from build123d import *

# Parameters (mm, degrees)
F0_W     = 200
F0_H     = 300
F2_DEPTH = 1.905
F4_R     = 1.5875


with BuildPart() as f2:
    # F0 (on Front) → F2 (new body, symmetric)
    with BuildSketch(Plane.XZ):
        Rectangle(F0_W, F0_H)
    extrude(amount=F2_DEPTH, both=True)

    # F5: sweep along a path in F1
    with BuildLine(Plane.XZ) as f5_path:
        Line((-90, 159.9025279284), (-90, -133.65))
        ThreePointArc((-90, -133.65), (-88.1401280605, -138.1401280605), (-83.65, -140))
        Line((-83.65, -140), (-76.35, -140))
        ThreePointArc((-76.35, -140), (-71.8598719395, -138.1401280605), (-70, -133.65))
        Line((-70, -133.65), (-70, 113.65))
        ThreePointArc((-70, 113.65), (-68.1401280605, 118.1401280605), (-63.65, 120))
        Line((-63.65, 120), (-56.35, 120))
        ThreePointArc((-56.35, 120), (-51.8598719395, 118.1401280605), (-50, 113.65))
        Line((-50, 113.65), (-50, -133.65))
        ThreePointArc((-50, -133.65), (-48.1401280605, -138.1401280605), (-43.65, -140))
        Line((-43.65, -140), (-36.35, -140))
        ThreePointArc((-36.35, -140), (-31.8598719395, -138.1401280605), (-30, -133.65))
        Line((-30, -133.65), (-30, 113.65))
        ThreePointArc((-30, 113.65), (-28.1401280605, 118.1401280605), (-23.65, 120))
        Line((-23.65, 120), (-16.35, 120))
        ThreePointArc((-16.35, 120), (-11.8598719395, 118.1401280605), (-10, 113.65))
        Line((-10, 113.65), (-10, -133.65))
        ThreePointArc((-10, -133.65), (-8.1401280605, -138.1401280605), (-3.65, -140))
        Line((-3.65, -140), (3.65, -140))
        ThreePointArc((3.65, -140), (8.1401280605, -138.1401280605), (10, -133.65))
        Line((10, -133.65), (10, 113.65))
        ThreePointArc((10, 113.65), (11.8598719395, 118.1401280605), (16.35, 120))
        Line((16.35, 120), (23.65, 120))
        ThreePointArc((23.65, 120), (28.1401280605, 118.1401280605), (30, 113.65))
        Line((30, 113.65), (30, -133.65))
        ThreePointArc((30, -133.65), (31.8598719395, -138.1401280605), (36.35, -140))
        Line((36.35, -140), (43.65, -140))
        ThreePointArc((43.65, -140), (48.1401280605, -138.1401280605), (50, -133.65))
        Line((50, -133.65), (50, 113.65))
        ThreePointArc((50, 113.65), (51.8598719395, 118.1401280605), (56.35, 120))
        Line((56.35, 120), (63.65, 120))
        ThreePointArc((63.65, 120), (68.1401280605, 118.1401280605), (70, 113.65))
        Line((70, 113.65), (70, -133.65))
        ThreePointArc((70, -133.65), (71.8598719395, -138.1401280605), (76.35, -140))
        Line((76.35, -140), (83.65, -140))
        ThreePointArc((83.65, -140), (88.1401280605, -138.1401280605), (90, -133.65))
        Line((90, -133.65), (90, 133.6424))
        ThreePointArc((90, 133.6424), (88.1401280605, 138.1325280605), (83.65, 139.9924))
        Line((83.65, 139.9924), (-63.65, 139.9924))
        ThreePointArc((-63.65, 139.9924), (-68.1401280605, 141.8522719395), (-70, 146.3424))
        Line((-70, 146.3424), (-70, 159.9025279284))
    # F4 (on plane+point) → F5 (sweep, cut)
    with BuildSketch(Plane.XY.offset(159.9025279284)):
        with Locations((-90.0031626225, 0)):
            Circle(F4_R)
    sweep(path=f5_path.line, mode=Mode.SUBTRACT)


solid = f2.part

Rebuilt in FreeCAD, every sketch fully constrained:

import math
import FreeCAD as App
import Part
import Sketcher

V = App.Vector

doc = App.newDocument("Part")
body = doc.addObject("PartDesign::Body", "Body")

# Sketch on XZ plane
sketch1 = doc.addObject("Sketcher::SketchObject", "Sketch")
body.addObject(sketch1)
sketch1.AttachmentSupport = (doc.XZ_Plane, [""])
sketch1.MapMode = "FlatFace"
sketch1.addGeometry(Part.LineSegment(V(-100, 150, 0), V(-100, -150, 0)), False)
sketch1.addGeometry(Part.LineSegment(V(-100, -150, 0), V(100, -150, 0)), False)
sketch1.addGeometry(Part.LineSegment(V(100, -150, 0), V(100, 150, 0)), False)
sketch1.addGeometry(Part.LineSegment(V(100, 150, 0), V(-100, 150, 0)), False)
sketch1.addConstraint(Sketcher.Constraint("Coincident", 0, 2, 1, 1))
sketch1.addConstraint(Sketcher.Constraint("Coincident", 1, 2, 2, 1))
sketch1.addConstraint(Sketcher.Constraint("Coincident", 2, 2, 3, 1))
sketch1.addConstraint(Sketcher.Constraint("Coincident", 3, 2, 0, 1))
sketch1.addConstraint(Sketcher.Constraint("Vertical", 0))
sketch1.addConstraint(Sketcher.Constraint("Horizontal", 1))
sketch1.addConstraint(Sketcher.Constraint("Vertical", 2))
sketch1.addConstraint(Sketcher.Constraint("Horizontal", 3))
sketch1.addConstraint(Sketcher.Constraint("Symmetric", 0, 2, 2, 2, -1, 1))
sketch1.addConstraint(Sketcher.Constraint("DistanceX", 1, 1, 1, 2, 200.0))
sketch1.addConstraint(Sketcher.Constraint("DistanceY", 0, 2, 0, 1, 300.0))
pad1 = doc.addObject("PartDesign::Pad", "Pad")
body.addObject(pad1)
pad1.Profile = sketch1
pad1.Length = 3.81
pad1.Midplane = True

# Sketch on XY plane
sketch2 = doc.addObject("Sketcher::SketchObject", "Sketch001")
body.addObject(sketch2)
sketch2.AttachmentSupport = (doc.XY_Plane, [""])
sketch2.MapMode = "FlatFace"
sketch2.AttachmentOffset = App.Placement(V(0, 0, 159.902528), App.Rotation())
sketch2.addGeometry(Part.Circle(V(-90, 0, 0), V(0, 0, 1), 1.6), False)
sketch2.addConstraint(Sketcher.Constraint("PointOnObject", 0, 3, -1))
sketch2.addConstraint(Sketcher.Constraint("Diameter", 0, 3.175))
sketch2.addConstraint(Sketcher.Constraint("DistanceX", 0, 3, -1, 1, 90.003163))

# Sketch on XZ plane
sketch3 = doc.addObject("Sketcher::SketchObject", "Sketch002")
body.addObject(sketch3)
sketch3.AttachmentSupport = (doc.XZ_Plane, [""])
sketch3.MapMode = "FlatFace"
sketch3.addGeometry(Part.LineSegment(V(-90, 160, 0), V(-90, -134, 0)), False)
sketch3.addGeometry(Part.ArcOfCircle(Part.Circle(V(-84, -134, 0), V(0, 0, 1), 6), math.radians(180), math.radians(270)), False)
sketch3.addGeometry(Part.LineSegment(V(-84, -140, 0), V(-76, -140, 0)), False)
sketch3.addGeometry(Part.ArcOfCircle(Part.Circle(V(-76, -134, 0), V(0, 0, 1), 6), math.radians(-90), math.radians(0)), False)
sketch3.addGeometry(Part.LineSegment(V(-70, -134, 0), V(-70, 114, 0)), False)
sketch3.addGeometry(Part.ArcOfCircle(Part.Circle(V(-64, 114, 0), V(0, 0, 1), 6), math.radians(90), math.radians(180)), False)
sketch3.addGeometry(Part.LineSegment(V(-64, 120, 0), V(-56, 120, 0)), False)
sketch3.addGeometry(Part.ArcOfCircle(Part.Circle(V(-56, 114, 0), V(0, 0, 1), 6), math.radians(0), math.radians(90)), False)
sketch3.addGeometry(Part.LineSegment(V(-50, 114, 0), V(-50, -134, 0)), False)
sketch3.addGeometry(Part.ArcOfCircle(Part.Circle(V(-44, -134, 0), V(0, 0, 1), 6), math.radians(180), math.radians(270)), False)
sketch3.addGeometry(Part.LineSegment(V(-44, -140, 0), V(-36, -140, 0)), False)
sketch3.addGeometry(Part.ArcOfCircle(Part.Circle(V(-36, -134, 0), V(0, 0, 1), 6), math.radians(-90), math.radians(0)), False)
sketch3.addGeometry(Part.LineSegment(V(-30, -134, 0), V(-30, 114, 0)), False)
sketch3.addGeometry(Part.ArcOfCircle(Part.Circle(V(-24, 114, 0), V(0, 0, 1), 6), math.radians(90), math.radians(180)), False)
sketch3.addGeometry(Part.LineSegment(V(-24, 120, 0), V(-16, 120, 0)), False)
sketch3.addGeometry(Part.ArcOfCircle(Part.Circle(V(-16, 114, 0), V(0, 0, 1), 6), math.radians(0), math.radians(90)), False)
sketch3.addGeometry(Part.LineSegment(V(-10, 114, 0), V(-10, -134, 0)), False)
sketch3.addGeometry(Part.ArcOfCircle(Part.Circle(V(-4, -134, 0), V(0, 0, 1), 6), math.radians(180), math.radians(270)), False)
sketch3.addGeometry(Part.LineSegment(V(-4, -140, 0), V(4, -140, 0)), False)
sketch3.addGeometry(Part.ArcOfCircle(Part.Circle(V(4, -134, 0), V(0, 0, 1), 6), math.radians(-90), math.radians(0)), False)
sketch3.addGeometry(Part.LineSegment(V(10, -134, 0), V(10, 114, 0)), False)
sketch3.addGeometry(Part.ArcOfCircle(Part.Circle(V(16, 114, 0), V(0, 0, 1), 6), math.radians(90), math.radians(180)), False)
sketch3.addGeometry(Part.LineSegment(V(16, 120, 0), V(24, 120, 0)), False)
sketch3.addGeometry(Part.ArcOfCircle(Part.Circle(V(24, 114, 0), V(0, 0, 1), 6), math.radians(0), math.radians(90)), False)
sketch3.addGeometry(Part.LineSegment(V(30, 114, 0), V(30, -134, 0)), False)
sketch3.addGeometry(Part.ArcOfCircle(Part.Circle(V(36, -134, 0), V(0, 0, 1), 6), math.radians(180), math.radians(270)), False)
sketch3.addGeometry(Part.LineSegment(V(36, -140, 0), V(44, -140, 0)), False)
sketch3.addGeometry(Part.ArcOfCircle(Part.Circle(V(44, -134, 0), V(0, 0, 1), 6), math.radians(-90), math.radians(0)), False)
sketch3.addGeometry(Part.LineSegment(V(50, -134, 0), V(50, 114, 0)), False)
sketch3.addGeometry(Part.ArcOfCircle(Part.Circle(V(56, 114, 0), V(0, 0, 1), 6), math.radians(90), math.radians(180)), False)
sketch3.addGeometry(Part.LineSegment(V(56, 120, 0), V(64, 120, 0)), False)
sketch3.addGeometry(Part.ArcOfCircle(Part.Circle(V(64, 114, 0), V(0, 0, 1), 6), math.radians(0), math.radians(90)), False)
sketch3.addGeometry(Part.LineSegment(V(70, 114, 0), V(70, -134, 0)), False)
sketch3.addGeometry(Part.ArcOfCircle(Part.Circle(V(76, -134, 0), V(0, 0, 1), 6), math.radians(180), math.radians(270)), False)
sketch3.addGeometry(Part.LineSegment(V(76, -140, 0), V(84, -140, 0)), False)
sketch3.addGeometry(Part.ArcOfCircle(Part.Circle(V(84, -134, 0), V(0, 0, 1), 6), math.radians(-90), math.radians(0)), False)
sketch3.addGeometry(Part.LineSegment(V(90, -134, 0), V(90, 134, 0)), False)
sketch3.addGeometry(Part.ArcOfCircle(Part.Circle(V(84, 134, 0), V(0, 0, 1), 6), math.radians(0), math.radians(90)), False)
sketch3.addGeometry(Part.LineSegment(V(84, 140, 0), V(-64, 140, 0)), False)
sketch3.addGeometry(Part.ArcOfCircle(Part.Circle(V(-64, 146, 0), V(0, 0, 1), 6), math.radians(180), math.radians(270)), False)
sketch3.addGeometry(Part.LineSegment(V(-70, 146, 0), V(-70, 160, 0)), False)
sketch3.addConstraint(Sketcher.Constraint("Tangent", 0, 2, 1, 1))
sketch3.addConstraint(Sketcher.Constraint("Tangent", 1, 2, 2, 1))
sketch3.addConstraint(Sketcher.Constraint("Tangent", 2, 2, 3, 1))
sketch3.addConstraint(Sketcher.Constraint("Tangent", 3, 2, 4, 1))
sketch3.addConstraint(Sketcher.Constraint("Tangent", 4, 2, 5, 2))
sketch3.addConstraint(Sketcher.Constraint("Tangent", 5, 1, 6, 1))
sketch3.addConstraint(Sketcher.Constraint("Tangent", 6, 2, 7, 2))
sketch3.addConstraint(Sketcher.Constraint("Tangent", 7, 1, 8, 1))
sketch3.addConstraint(Sketcher.Constraint("Tangent", 8, 2, 9, 1))
sketch3.addConstraint(Sketcher.Constraint("Tangent", 9, 2, 10, 1))
sketch3.addConstraint(Sketcher.Constraint("Tangent", 10, 2, 11, 1))
sketch3.addConstraint(Sketcher.Constraint("Tangent", 11, 2, 12, 1))
sketch3.addConstraint(Sketcher.Constraint("Tangent", 12, 2, 13, 2))
sketch3.addConstraint(Sketcher.Constraint("Tangent", 13, 1, 14, 1))
sketch3.addConstraint(Sketcher.Constraint("Tangent", 14, 2, 15, 2))
sketch3.addConstraint(Sketcher.Constraint("Tangent", 15, 1, 16, 1))
sketch3.addConstraint(Sketcher.Constraint("Tangent", 16, 2, 17, 1))
sketch3.addConstraint(Sketcher.Constraint("Tangent", 17, 2, 18, 1))
sketch3.addConstraint(Sketcher.Constraint("Tangent", 18, 2, 19, 1))
sketch3.addConstraint(Sketcher.Constraint("Tangent", 19, 2, 20, 1))
sketch3.addConstraint(Sketcher.Constraint("Tangent", 20, 2, 21, 2))
sketch3.addConstraint(Sketcher.Constraint("Tangent", 21, 1, 22, 1))
sketch3.addConstraint(Sketcher.Constraint("Tangent", 22, 2, 23, 2))
sketch3.addConstraint(Sketcher.Constraint("Tangent", 23, 1, 24, 1))
sketch3.addConstraint(Sketcher.Constraint("Tangent", 24, 2, 25, 1))
sketch3.addConstraint(Sketcher.Constraint("Tangent", 25, 2, 26, 1))
sketch3.addConstraint(Sketcher.Constraint("Tangent", 26, 2, 27, 1))
sketch3.addConstraint(Sketcher.Constraint("Tangent", 27, 2, 28, 1))
sketch3.addConstraint(Sketcher.Constraint("Tangent", 28, 2, 29, 2))
sketch3.addConstraint(Sketcher.Constraint("Tangent", 29, 1, 30, 1))
sketch3.addConstraint(Sketcher.Constraint("Tangent", 30, 2, 31, 2))
sketch3.addConstraint(Sketcher.Constraint("Tangent", 31, 1, 32, 1))
sketch3.addConstraint(Sketcher.Constraint("Tangent", 32, 2, 33, 1))
sketch3.addConstraint(Sketcher.Constraint("Tangent", 33, 2, 34, 1))
sketch3.addConstraint(Sketcher.Constraint("Tangent", 34, 2, 35, 1))
sketch3.addConstraint(Sketcher.Constraint("Tangent", 35, 2, 36, 1))
sketch3.addConstraint(Sketcher.Constraint("Tangent", 36, 2, 37, 1))
sketch3.addConstraint(Sketcher.Constraint("Tangent", 37, 2, 38, 1))
sketch3.addConstraint(Sketcher.Constraint("Tangent", 38, 2, 39, 2))
sketch3.addConstraint(Sketcher.Constraint("Tangent", 39, 1, 40, 1))
sketch3.addConstraint(Sketcher.Constraint("Vertical", 0))
sketch3.addConstraint(Sketcher.Constraint("Horizontal", 2))
sketch3.addConstraint(Sketcher.Constraint("Vertical", 4))
sketch3.addConstraint(Sketcher.Constraint("Horizontal", 6))
sketch3.addConstraint(Sketcher.Constraint("Vertical", 8))
sketch3.addConstraint(Sketcher.Constraint("Horizontal", 10))
sketch3.addConstraint(Sketcher.Constraint("Vertical", 12))
sketch3.addConstraint(Sketcher.Constraint("Horizontal", 14))
sketch3.addConstraint(Sketcher.Constraint("Vertical", 16))
sketch3.addConstraint(Sketcher.Constraint("Horizontal", 18))
sketch3.addConstraint(Sketcher.Constraint("Vertical", 20))
sketch3.addConstraint(Sketcher.Constraint("Horizontal", 22))
sketch3.addConstraint(Sketcher.Constraint("Vertical", 24))
sketch3.addConstraint(Sketcher.Constraint("Horizontal", 26))
sketch3.addConstraint(Sketcher.Constraint("Vertical", 28))
sketch3.addConstraint(Sketcher.Constraint("Horizontal", 30))
sketch3.addConstraint(Sketcher.Constraint("Vertical", 32))
sketch3.addConstraint(Sketcher.Constraint("Horizontal", 34))
sketch3.addConstraint(Sketcher.Constraint("Vertical", 36))
sketch3.addConstraint(Sketcher.Constraint("Horizontal", 38))
sketch3.addConstraint(Sketcher.Constraint("Vertical", 40))
sketch3.addConstraint(Sketcher.Constraint("Equal", 1, 3))
sketch3.addConstraint(Sketcher.Constraint("Equal", 3, 5))
sketch3.addConstraint(Sketcher.Constraint("Equal", 5, 7))
sketch3.addConstraint(Sketcher.Constraint("Equal", 7, 9))
sketch3.addConstraint(Sketcher.Constraint("Equal", 9, 11))
sketch3.addConstraint(Sketcher.Constraint("Equal", 11, 13))
sketch3.addConstraint(Sketcher.Constraint("Equal", 13, 15))
sketch3.addConstraint(Sketcher.Constraint("Equal", 15, 17))
sketch3.addConstraint(Sketcher.Constraint("Equal", 17, 19))
sketch3.addConstraint(Sketcher.Constraint("Equal", 19, 21))
sketch3.addConstraint(Sketcher.Constraint("Equal", 21, 23))
sketch3.addConstraint(Sketcher.Constraint("Equal", 23, 25))
sketch3.addConstraint(Sketcher.Constraint("Equal", 25, 27))
sketch3.addConstraint(Sketcher.Constraint("Equal", 27, 29))
sketch3.addConstraint(Sketcher.Constraint("Equal", 29, 31))
sketch3.addConstraint(Sketcher.Constraint("Equal", 31, 33))
sketch3.addConstraint(Sketcher.Constraint("Equal", 33, 35))
sketch3.addConstraint(Sketcher.Constraint("Equal", 35, 37))
sketch3.addConstraint(Sketcher.Constraint("Equal", 37, 39))
sketch3.addConstraint(Sketcher.Constraint("Symmetric", 15, 3, 21, 3, -2))
sketch3.addConstraint(Sketcher.Constraint("Symmetric", 11, 3, 25, 3, -2))
sketch3.addConstraint(Sketcher.Constraint("Symmetric", 7, 3, 29, 3, -2))
sketch3.addConstraint(Sketcher.Constraint("Symmetric", 3, 3, 33, 3, -2))
sketch3.addConstraint(Sketcher.Constraint("Horizontal", 3, 3, 9, 3))
sketch3.addConstraint(Sketcher.Constraint("Horizontal", 7, 3, 13, 3))
sketch3.addConstraint(Sketcher.Constraint("Horizontal", 11, 3, 17, 3))
sketch3.addConstraint(Sketcher.Constraint("Horizontal", 0, 1, 40, 2))
sketch3.addConstraint(Sketcher.Constraint("Vertical", 5, 3, 39, 3))
sketch3.addConstraint(Sketcher.Constraint("Equal", 2, 6))
sketch3.addConstraint(Sketcher.Constraint("Equal", 6, 10))
sketch3.addConstraint(Sketcher.Constraint("Equal", 10, 14))
sketch3.addConstraint(Sketcher.Constraint("Equal", 14, 18))
sketch3.addConstraint(Sketcher.Constraint("Equal", 30, 34))
sketch3.addConstraint(Sketcher.Constraint("Radius", 1, 6.35))
sketch3.addConstraint(Sketcher.Constraint("DistanceX", 2, 1, 2, 2, 7.3))
sketch3.addConstraint(Sketcher.Constraint("DistanceY", 4, 1, 4, 2, 247.3))
sketch3.addConstraint(Sketcher.Constraint("DistanceY", 1, 2, -1, 1, 140.0))
sketch3.addConstraint(Sketcher.Constraint("DistanceY", 36, 1, 36, 2, 267.2924))
sketch3.addConstraint(Sketcher.Constraint("DistanceY", 0, 2, 0, 1, 293.552528))
doc.recompute()

subtractivepipe = doc.addObject("PartDesign::SubtractivePipe", "SubtractivePipe")
body.addObject(subtractivepipe)
subtractivepipe.Profile = sketch2
subtractivepipe.Spine = (sketch3, ["Edge1", "Edge2", "Edge3", "Edge4", "Edge5", "Edge6", "Edge7", "Edge8", "Edge9", "Edge10", "Edge11", "Edge12", "Edge13", "Edge14", "Edge15", "Edge16", "Edge17", "Edge18", "Edge19", "Edge20", "Edge21", "Edge22", "Edge23", "Edge24", "Edge25", "Edge26", "Edge27", "Edge28", "Edge29", "Edge30", "Edge31", "Edge32", "Edge33", "Edge34", "Edge35", "Edge36", "Edge37", "Edge38", "Edge39", "Edge40", "Edge41"])

doc.recompute()
